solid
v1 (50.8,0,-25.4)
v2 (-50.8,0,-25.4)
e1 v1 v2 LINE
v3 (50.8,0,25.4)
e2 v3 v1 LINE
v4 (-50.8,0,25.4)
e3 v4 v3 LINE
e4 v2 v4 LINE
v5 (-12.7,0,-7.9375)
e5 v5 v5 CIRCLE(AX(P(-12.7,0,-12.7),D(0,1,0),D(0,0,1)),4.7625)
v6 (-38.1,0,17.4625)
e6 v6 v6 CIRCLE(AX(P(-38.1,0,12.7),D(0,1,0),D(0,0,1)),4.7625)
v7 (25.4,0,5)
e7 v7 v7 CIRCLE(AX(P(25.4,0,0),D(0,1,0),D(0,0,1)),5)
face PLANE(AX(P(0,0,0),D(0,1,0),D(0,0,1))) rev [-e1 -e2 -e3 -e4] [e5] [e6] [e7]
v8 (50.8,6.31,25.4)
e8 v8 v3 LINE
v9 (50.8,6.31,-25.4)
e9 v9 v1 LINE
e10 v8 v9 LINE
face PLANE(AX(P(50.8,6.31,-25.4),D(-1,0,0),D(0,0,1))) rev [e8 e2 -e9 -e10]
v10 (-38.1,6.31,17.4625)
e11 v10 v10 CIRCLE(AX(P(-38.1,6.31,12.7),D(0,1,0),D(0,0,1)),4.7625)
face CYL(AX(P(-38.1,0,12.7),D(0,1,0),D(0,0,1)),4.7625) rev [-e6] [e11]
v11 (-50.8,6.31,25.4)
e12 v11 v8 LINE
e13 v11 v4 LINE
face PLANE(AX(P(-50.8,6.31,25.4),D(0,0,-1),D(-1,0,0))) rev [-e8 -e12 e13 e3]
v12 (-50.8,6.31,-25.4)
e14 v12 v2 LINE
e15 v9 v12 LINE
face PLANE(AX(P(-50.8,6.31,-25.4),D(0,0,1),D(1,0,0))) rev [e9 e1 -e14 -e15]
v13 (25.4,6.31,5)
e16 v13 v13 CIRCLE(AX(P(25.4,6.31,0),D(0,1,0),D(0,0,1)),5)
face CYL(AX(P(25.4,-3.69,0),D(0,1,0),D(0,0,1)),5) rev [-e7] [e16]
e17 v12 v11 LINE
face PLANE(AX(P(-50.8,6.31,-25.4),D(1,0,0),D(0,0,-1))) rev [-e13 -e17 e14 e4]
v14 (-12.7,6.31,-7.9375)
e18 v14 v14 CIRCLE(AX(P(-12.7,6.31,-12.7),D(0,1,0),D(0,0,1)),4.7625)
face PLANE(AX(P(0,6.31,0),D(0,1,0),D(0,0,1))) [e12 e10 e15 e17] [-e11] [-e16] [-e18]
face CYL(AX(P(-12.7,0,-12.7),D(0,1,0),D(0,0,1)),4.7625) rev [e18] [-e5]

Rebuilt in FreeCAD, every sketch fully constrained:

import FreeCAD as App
import Part
import Sketcher
from FreeCAD import Vector
Q = App.Units.Quantity

doc = App.newDocument("Part")
body = doc.addObject("PartDesign::Body", "Body")

# Sketch on XZ plane
sketch1 = doc.addObject("Sketcher::SketchObject", "Sketch")
body.addObject(sketch1)
sketch1.AttachmentSupport = (doc.XZ_Plane, [""])
sketch1.MapMode = "FlatFace"
sketch1.addGeometry(Part.LineSegment(Vector(-51, -25, 0), Vector(-51, 25, 0)), False)
sketch1.addGeometry(Part.LineSegment(Vector(-51, 25, 0), Vector(51, 25, 0)), False)
sketch1.addGeometry(Part.LineSegment(Vector(51, 25, 0), Vector(51, -25, 0)), False)
sketch1.addGeometry(Part.LineSegment(Vector(51, -25, 0), Vector(-51, -25, 0)), False)
sketch1.addConstraint(Sketcher.Constraint("Coincident", 0, 2, 1, 1))
sketch1.addConstraint(Sketcher.Constraint("Coincident", 1, 2, 2, 1))
sketch1.addConstraint(Sketcher.Constraint("Coincident", 2, 2, 3, 1))
sketch1.addConstraint(Sketcher.Constraint("Coincident", 3, 2, 0, 1))
sketch1.addConstraint(Sketcher.Constraint("Vertical", 0))
sketch1.addConstraint(Sketcher.Constraint("Horizontal", 1))
sketch1.addConstraint(Sketcher.Constraint("Vertical", 2))
sketch1.addConstraint(Sketcher.Constraint("Horizontal", 3))
sketch1.addConstraint(Sketcher.Constraint("Symmetric", 0, 2, 2, 2, -1, 1))
sketch1.addConstraint(Sketcher.Constraint("DistanceX", 1, 1, 1, 2, Q("4 in")))
sketch1.addConstraint(Sketcher.Constraint("DistanceY", 0, 1, 0, 2, Q("2 in")))
pad1 = doc.addObject("PartDesign::Pad", "Pad")
body.addObject(pad1)
pad1.Profile = sketch1
pad1.Length = 6.31
pad1.Reversed = True

# Sketch on XZ plane
sketch2 = doc.addObject("Sketcher::SketchObject", "Sketch001")
body.addObject(sketch2)
sketch2.AttachmentSupport = (doc.XZ_Plane, [""])
sketch2.MapMode = "FlatFace"
sketch2.AttachmentOffset = App.Placement(Vector(0, 0, -6.31), App.Rotation())
sketch2.addGeometry(Part.Circle(Vector(-38.1, 12.7, 0), Vector(0, 0, 1), 4.8), False)
sketch2.addGeometry(Part.Circle(Vector(-12.7, -12.7, 0), Vector(0, 0, 1), 4.8), False)
sketch2.addConstraint(Sketcher.Constraint("Equal", 0, 1))
sketch2.addConstraint(Sketcher.Constraint("Diameter", 0, Q("0.375 in")))
sketch2.addConstraint(Sketcher.Constraint("DistanceX", 0, 3, 1, 3, Q("1 in")))
sketch2.addConstraint(Sketcher.Constraint("DistanceY", 1, 3, 0, 3, Q("1 in")))
sketch2.addConstraint(Sketcher.Constraint("DistanceX", 0, 3, -1, 1, Q("1.5 in")))
sketch2.addConstraint(Sketcher.Constraint("DistanceY", -1, 1, 0, 3, Q("0.5 in")))
pocket1 = doc.addObject("PartDesign::Pocket", "Pocket")
body.addObject(pocket1)
pocket1.Profile = sketch2
pocket1.Length = 6.31
pocket1.Reversed = True

# Sketch on XZ plane
sketch3 = doc.addObject("Sketcher::SketchObject", "Sketch002")
body.addObject(sketch3)
sketch3.AttachmentSupport = (doc.XZ_Plane, [""])
sketch3.MapMode = "FlatFace"
sketch3.AttachmentOffset = App.Placement(Vector(0, 0, -6.31), App.Rotation())
sketch3.addGeometry(Part.Circle(Vector(25, 0, 0), Vector(0, 0, 1), 5), False)
sketch3.addConstraint(Sketcher.Constraint("PointOnObject", 0, 3, -1))
sketch3.addConstraint(Sketcher.Constraint("DistanceX", -1, 1, 0, 3, Q("1 in")))
sketch3.addConstraint(Sketcher.Constraint("Diameter", 0, Q("10 mm")))
pocket2 = doc.addObject("PartDesign::Pocket", "Pocket001")
body.addObject(pocket2)
pocket2.Profile = sketch3
pocket2.Length = 10
pocket2.Reversed = True

doc.recompute()
